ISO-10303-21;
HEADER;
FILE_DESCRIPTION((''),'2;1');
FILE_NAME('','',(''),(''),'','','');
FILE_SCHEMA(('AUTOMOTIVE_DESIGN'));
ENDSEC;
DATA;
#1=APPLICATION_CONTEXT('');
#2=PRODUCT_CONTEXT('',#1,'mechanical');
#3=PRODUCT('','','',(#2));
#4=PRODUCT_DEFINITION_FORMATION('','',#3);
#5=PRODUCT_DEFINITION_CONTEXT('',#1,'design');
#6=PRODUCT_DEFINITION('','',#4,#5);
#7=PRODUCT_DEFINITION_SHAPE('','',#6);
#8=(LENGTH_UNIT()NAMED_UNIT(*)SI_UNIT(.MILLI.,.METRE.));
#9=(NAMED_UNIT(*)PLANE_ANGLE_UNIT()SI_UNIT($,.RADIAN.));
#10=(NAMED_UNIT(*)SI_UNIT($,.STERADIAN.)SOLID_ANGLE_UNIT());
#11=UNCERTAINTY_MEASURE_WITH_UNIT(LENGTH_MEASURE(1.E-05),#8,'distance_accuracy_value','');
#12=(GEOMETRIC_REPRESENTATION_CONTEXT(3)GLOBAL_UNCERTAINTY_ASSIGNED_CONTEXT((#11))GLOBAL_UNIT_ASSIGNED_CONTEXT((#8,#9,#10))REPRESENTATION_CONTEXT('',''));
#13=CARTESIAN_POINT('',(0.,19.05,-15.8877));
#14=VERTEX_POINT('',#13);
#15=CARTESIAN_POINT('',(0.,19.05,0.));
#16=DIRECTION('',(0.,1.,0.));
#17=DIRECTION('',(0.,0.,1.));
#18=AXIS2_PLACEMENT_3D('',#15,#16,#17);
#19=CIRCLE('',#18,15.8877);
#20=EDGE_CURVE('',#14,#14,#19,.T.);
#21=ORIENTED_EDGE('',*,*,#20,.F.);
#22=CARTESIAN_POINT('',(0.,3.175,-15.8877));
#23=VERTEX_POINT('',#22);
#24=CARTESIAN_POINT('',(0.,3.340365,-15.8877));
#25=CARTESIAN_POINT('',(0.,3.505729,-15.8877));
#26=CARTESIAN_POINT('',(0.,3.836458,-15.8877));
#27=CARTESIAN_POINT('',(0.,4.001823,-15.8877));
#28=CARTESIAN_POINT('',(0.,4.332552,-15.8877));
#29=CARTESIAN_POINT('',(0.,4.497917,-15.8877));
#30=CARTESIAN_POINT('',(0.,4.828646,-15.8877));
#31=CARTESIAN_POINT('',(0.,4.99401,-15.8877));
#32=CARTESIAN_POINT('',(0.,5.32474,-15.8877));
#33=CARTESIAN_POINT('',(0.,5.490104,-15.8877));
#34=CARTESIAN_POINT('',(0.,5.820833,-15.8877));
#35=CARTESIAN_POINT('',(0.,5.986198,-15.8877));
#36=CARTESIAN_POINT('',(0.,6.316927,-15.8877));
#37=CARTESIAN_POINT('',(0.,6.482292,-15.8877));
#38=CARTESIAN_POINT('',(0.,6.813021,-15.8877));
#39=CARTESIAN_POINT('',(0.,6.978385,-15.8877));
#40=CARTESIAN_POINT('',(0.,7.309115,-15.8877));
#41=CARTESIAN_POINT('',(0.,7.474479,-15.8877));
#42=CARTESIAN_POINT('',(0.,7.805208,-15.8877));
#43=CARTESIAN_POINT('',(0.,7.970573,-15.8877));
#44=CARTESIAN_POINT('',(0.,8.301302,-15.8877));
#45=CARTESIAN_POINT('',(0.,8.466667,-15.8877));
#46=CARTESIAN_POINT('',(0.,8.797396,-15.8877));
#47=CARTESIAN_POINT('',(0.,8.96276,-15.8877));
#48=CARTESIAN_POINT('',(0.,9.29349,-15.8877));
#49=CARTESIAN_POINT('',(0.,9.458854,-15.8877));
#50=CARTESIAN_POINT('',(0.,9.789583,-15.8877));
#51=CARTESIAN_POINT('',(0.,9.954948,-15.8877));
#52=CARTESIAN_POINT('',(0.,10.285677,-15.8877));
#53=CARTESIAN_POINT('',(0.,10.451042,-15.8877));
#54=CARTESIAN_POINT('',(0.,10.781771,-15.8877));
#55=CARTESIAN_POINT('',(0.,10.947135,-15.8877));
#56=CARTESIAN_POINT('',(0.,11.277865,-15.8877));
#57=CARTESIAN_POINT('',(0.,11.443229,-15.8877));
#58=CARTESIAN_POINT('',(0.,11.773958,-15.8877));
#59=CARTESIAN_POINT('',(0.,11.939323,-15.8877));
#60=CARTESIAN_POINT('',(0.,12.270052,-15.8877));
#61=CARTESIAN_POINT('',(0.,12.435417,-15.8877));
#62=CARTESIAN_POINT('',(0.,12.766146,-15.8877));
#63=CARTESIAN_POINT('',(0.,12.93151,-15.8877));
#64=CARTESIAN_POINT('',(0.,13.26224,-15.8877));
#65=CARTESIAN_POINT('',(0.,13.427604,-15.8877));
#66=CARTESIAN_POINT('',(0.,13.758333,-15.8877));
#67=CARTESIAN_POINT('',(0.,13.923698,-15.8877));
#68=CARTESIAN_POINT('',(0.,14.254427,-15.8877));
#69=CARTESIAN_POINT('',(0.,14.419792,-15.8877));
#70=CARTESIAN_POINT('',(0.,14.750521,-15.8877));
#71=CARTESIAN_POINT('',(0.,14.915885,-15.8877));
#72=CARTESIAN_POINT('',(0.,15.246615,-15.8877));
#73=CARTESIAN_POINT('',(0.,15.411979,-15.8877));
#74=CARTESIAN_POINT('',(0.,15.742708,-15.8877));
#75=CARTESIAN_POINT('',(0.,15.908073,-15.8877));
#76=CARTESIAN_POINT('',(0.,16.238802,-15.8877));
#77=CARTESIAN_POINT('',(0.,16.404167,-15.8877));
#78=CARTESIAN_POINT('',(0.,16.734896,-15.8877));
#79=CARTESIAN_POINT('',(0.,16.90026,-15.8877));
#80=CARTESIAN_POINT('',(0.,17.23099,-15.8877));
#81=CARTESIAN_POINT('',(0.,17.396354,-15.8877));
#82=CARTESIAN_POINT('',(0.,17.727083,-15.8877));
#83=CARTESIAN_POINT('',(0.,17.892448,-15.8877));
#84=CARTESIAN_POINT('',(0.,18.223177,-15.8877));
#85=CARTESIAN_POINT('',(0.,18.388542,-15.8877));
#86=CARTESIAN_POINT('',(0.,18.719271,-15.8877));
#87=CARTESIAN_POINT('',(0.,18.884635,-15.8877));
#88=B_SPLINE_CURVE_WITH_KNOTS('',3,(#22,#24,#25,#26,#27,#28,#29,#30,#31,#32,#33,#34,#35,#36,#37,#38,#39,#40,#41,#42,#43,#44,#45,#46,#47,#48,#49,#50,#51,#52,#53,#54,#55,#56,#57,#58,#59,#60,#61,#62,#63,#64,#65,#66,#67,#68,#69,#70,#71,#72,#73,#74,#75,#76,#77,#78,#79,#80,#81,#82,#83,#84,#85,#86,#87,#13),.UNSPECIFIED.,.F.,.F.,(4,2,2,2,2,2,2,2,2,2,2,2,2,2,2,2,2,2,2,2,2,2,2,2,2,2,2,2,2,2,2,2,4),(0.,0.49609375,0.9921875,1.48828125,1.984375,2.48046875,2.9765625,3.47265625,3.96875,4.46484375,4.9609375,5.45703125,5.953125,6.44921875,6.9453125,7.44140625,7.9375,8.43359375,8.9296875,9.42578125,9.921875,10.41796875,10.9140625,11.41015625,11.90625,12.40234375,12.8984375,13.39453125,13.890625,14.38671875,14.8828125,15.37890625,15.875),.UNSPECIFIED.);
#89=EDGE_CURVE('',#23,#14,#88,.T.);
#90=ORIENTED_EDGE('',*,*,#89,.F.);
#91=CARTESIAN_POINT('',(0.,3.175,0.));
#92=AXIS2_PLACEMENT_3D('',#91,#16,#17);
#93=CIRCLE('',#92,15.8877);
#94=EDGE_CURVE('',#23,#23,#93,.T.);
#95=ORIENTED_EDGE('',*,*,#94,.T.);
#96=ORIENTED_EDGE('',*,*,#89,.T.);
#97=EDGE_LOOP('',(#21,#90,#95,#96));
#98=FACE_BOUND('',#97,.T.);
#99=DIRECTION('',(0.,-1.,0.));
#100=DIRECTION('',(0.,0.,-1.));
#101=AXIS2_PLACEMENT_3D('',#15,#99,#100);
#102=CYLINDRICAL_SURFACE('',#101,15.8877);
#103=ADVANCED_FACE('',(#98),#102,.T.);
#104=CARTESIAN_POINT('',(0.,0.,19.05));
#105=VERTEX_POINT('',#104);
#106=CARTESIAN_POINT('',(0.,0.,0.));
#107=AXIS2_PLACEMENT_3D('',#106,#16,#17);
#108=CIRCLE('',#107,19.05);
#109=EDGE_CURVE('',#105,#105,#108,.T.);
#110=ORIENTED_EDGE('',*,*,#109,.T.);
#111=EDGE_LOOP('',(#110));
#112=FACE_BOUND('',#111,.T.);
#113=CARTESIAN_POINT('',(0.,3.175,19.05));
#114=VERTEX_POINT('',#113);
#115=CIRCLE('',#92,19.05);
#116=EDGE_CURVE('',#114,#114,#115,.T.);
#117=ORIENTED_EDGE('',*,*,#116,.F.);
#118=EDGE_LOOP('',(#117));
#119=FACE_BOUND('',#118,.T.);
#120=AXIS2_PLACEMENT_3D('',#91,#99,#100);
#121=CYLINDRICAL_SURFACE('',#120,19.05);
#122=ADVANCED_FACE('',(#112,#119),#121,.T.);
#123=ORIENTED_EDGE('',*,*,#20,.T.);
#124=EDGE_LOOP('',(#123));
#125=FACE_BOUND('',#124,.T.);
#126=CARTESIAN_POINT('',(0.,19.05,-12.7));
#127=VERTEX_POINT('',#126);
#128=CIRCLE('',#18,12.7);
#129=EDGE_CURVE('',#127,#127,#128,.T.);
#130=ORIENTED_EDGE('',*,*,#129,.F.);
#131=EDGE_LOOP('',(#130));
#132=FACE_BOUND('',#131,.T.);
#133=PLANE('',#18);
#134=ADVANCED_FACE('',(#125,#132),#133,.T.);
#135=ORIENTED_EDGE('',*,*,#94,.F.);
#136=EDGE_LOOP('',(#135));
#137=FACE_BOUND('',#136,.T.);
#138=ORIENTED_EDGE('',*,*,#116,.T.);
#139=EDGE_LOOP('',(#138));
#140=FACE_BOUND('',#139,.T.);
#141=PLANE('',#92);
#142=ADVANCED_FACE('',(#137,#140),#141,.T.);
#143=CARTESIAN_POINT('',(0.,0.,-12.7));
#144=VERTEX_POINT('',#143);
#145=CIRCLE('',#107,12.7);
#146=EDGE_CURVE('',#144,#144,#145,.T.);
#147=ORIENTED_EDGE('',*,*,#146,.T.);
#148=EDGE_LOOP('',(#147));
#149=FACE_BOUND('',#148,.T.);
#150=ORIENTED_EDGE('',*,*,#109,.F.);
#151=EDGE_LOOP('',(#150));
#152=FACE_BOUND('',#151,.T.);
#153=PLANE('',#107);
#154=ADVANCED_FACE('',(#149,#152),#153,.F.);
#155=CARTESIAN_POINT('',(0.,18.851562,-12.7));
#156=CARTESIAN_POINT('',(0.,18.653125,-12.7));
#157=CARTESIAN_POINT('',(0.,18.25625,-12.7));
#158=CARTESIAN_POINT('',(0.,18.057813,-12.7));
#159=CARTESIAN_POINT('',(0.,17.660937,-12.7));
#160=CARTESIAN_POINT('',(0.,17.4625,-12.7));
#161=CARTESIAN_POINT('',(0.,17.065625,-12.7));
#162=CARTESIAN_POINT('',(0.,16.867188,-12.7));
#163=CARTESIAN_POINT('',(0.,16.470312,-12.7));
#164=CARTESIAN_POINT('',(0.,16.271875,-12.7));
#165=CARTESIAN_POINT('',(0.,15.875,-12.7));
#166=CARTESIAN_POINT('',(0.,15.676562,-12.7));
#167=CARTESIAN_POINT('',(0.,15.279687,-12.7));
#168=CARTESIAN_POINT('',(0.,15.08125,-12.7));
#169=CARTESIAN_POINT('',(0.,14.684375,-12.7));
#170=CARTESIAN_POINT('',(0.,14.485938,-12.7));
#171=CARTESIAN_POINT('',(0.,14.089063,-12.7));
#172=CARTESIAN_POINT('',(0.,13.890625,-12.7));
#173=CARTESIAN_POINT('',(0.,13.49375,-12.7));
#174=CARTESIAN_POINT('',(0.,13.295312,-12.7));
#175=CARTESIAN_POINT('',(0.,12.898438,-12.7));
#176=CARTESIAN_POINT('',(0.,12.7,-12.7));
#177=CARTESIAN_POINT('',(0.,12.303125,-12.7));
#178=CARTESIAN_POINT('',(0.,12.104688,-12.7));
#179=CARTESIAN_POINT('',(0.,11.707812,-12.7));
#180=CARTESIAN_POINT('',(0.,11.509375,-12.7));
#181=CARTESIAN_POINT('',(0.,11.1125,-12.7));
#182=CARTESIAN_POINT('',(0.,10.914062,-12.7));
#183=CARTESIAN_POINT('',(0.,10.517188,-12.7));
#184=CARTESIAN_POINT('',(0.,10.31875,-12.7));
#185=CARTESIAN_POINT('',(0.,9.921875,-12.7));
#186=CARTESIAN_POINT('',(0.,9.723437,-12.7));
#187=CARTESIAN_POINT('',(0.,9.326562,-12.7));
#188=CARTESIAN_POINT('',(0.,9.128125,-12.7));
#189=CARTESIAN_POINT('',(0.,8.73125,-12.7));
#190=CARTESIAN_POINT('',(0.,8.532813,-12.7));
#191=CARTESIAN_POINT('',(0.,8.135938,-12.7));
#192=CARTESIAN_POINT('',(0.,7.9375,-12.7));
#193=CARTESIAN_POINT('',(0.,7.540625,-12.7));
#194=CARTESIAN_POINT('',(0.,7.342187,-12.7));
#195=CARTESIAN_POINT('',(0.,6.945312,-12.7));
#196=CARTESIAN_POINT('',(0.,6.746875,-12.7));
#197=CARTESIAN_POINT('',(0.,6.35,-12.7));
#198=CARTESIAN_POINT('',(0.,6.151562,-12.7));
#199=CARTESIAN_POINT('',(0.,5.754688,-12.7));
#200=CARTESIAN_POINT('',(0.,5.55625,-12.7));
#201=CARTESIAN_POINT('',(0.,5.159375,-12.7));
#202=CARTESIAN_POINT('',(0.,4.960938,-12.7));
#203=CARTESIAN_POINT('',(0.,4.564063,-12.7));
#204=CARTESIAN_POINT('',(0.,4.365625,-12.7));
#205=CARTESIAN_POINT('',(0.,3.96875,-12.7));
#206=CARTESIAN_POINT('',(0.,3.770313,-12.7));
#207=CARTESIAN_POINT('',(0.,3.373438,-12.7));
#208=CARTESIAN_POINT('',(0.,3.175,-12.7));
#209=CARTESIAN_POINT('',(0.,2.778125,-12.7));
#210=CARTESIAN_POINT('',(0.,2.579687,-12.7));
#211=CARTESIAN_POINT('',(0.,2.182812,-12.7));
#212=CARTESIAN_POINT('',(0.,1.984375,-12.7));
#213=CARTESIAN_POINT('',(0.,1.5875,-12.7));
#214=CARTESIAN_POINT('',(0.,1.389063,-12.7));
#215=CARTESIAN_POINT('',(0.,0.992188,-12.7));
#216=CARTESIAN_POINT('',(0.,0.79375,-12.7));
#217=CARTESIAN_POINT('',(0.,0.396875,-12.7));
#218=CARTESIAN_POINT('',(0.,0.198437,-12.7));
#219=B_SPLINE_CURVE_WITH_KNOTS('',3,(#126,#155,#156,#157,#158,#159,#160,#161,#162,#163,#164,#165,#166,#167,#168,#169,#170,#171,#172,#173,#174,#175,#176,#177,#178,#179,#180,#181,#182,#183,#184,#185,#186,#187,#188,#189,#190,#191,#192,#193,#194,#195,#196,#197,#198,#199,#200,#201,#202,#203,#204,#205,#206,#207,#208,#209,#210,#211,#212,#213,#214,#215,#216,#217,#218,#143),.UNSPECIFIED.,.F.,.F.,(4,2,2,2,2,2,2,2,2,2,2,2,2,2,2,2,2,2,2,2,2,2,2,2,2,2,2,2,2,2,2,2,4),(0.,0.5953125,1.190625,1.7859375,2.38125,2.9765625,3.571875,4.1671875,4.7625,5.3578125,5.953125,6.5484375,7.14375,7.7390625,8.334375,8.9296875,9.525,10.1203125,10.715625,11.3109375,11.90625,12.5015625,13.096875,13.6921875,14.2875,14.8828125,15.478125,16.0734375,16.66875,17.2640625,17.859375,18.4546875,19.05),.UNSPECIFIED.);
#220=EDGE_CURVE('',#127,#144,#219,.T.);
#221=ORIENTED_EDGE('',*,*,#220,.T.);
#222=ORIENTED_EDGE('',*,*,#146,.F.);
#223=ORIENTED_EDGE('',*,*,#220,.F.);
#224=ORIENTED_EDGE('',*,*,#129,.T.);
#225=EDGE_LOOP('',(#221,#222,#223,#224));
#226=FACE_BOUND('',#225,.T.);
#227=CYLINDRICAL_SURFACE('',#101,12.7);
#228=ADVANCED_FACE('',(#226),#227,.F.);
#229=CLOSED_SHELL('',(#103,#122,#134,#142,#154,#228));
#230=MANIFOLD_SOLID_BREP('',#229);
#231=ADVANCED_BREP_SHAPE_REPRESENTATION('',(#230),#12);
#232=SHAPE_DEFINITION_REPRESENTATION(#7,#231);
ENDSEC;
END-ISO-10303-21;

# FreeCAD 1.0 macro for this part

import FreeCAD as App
import Part
import Sketcher

V = App.Vector
Q = App.Units.Quantity

doc = App.newDocument("Part")
params = doc.addObject("Spreadsheet::Sheet", "Params")
for row, (alias, value) in enumerate([
    ("sketch1_diameter", "1 in"),
    ("sketch1_diameter2", "1.251 in"),
    ("pad1_length", "0.75 in"),
    ("sketch2_diameter", "1.5 in"),
    ("sketch2_diameter2", "1.251 in"),
    ("pad2_length", "0.125 in"),
], start=1):
    params.set(f"A{row}", alias)
    params.set(f"B{row}", "=" + value)
    params.setAlias(f"B{row}", alias)

body = doc.addObject("PartDesign::Body", "Body")

# Sketch on XZ plane
sketch1 = body.newObject("Sketcher::SketchObject", "Sketch")
sketch1.AttachmentSupport = (doc.getObject("XZ_Plane"), [""])
sketch1.MapMode = "FlatFace"
sketch1.addGeometry([
    Part.Circle(V(0, 0, 0), V(0, 0, 1), 15.8877),
    Part.Circle(V(0, 0, 0), V(0, 0, 1), 12.7),
], False)
sketch1.addConstraint([
    Sketcher.Constraint("Coincident", 0, 3, -1, 1),
    Sketcher.Constraint("Coincident", 1, 3, -1, 1),
    Sketcher.Constraint("Diameter", 1, Q("1 in")),
    Sketcher.Constraint("Diameter", 0, Q("1.251 in")),
])
sketch1.setExpression("Constraints[2]", "Params.sketch1_diameter")
sketch1.setExpression("Constraints[3]", "Params.sketch1_diameter2")
pad1 = body.newObject("PartDesign::Pad", "Pad")
pad1.Profile = sketch1
pad1.setExpression("Length", "Params.pad1_length")
pad1.Reversed = True

# Sketch on XZ plane
sketch2 = body.newObject("Sketcher::SketchObject", "Sketch001")
sketch2.AttachmentSupport = (doc.getObject("XZ_Plane"), [""])
sketch2.MapMode = "FlatFace"
sketch2.addGeometry([
    Part.Circle(V(0, 0, 0), V(0, 0, 1), 19.05),
    Part.Circle(V(0, 0, 0), V(0, 0, 1), 15.8877),
], False)
sketch2.addConstraint([
    Sketcher.Constraint("Coincident", 0, 3, -1, 1),
    Sketcher.Constraint("Coincident", 1, 3, -1, 1),
    Sketcher.Constraint("Diameter", 0, Q("1.5 in")),
    Sketcher.Constraint("Diameter", 1, Q("1.251 in")),
])
sketch2.setExpression("Constraints[2]", "Params.sketch2_diameter")
sketch2.setExpression("Constraints[3]", "Params.sketch2_diameter2")
pad2 = body.newObject("PartDesign::Pad", "Pad001")
pad2.Profile = sketch2
pad2.setExpression("Length", "Params.pad2_length")
pad2.Reversed = True

doc.recompute()
